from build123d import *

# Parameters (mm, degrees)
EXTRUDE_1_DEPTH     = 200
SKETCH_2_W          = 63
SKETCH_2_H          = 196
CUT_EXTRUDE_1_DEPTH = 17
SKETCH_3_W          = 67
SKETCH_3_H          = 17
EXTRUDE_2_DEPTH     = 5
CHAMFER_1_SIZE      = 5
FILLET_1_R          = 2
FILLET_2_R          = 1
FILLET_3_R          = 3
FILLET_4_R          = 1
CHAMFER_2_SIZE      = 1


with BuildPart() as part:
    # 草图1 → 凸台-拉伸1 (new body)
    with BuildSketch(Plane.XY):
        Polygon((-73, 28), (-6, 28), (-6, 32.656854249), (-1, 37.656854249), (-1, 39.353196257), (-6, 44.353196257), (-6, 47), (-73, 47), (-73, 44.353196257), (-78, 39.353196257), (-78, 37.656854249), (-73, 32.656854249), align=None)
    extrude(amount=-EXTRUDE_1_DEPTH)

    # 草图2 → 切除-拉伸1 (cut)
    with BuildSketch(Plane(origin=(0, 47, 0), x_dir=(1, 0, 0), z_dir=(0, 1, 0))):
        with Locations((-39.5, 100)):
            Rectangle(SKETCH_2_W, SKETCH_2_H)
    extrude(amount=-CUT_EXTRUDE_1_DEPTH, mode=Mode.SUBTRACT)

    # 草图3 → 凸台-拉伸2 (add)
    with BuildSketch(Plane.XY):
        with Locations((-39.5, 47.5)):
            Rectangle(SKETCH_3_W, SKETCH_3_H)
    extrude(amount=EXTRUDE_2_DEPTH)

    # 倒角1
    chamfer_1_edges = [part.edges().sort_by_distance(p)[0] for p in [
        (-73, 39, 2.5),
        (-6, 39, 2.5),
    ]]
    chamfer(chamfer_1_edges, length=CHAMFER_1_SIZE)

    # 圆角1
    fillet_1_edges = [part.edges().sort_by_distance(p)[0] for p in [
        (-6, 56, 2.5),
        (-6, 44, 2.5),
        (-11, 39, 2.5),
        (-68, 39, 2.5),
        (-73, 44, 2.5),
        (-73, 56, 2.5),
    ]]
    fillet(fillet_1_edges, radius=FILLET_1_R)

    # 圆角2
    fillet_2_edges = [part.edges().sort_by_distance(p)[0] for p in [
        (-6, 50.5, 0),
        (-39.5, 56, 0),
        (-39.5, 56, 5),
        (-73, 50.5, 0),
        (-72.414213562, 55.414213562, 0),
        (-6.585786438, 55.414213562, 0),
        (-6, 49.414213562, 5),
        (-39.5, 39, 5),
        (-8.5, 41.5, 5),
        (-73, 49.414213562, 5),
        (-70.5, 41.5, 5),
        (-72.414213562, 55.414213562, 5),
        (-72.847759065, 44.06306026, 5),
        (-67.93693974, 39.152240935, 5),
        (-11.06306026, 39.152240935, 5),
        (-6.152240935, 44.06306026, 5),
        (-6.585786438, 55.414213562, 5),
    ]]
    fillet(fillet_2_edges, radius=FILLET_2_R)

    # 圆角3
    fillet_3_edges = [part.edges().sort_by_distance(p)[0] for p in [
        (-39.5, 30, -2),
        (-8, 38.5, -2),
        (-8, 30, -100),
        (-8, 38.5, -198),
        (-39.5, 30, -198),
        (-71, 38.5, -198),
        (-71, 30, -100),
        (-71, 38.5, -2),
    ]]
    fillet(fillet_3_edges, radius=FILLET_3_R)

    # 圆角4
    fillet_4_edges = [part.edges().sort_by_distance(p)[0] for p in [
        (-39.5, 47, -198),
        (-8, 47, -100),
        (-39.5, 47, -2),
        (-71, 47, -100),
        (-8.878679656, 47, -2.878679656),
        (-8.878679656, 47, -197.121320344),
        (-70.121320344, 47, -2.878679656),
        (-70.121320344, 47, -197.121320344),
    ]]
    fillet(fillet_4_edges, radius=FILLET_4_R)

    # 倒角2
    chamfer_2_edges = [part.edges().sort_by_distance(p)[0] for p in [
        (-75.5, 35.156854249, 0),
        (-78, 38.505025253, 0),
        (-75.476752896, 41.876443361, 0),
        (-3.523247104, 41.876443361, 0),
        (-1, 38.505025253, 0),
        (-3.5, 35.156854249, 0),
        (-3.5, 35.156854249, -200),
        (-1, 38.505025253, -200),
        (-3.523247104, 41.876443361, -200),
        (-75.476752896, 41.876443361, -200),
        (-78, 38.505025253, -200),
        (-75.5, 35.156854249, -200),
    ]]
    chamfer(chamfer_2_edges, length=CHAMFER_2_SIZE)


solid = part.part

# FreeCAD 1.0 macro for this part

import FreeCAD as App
import Part
import Sketcher
from FreeCAD import Vector
Q = App.Units.Quantity


def edges_at(feature, points):
    """Names of the edges that pass closest to the given points."""
    edges = feature.Shape.Edges
    near = lambda p: min(range(len(edges)), key=lambda i: edges[i].distToShape(Part.Vertex(*p))[0])
    return sorted({f"Edge{near(p) + 1}" for p in points})

doc = App.newDocument("Part")
body = doc.addObject("PartDesign::Body", "Body")

# Sketch on XY plane
sketch1 = body.newObject("Sketcher::SketchObject", "Sketch")
sketch1.AttachmentSupport = (doc.getObject("XY_Plane"), [""])
sketch1.MapMode = "FlatFace"
sketch1.addGeometry(Part.LineSegment(Vector(-73, 28, 0), Vector(-6, 28, 0)), False)
sketch1.addGeometry(Part.LineSegment(Vector(-6, 28, 0), Vector(-6, 32.7, 0)), False)
sketch1.addGeometry(Part.LineSegment(Vector(-6, 32.7, 0), Vector(-1, 37.7, 0)), False)
sketch1.addGeometry(Part.LineSegment(Vector(-1, 37.7, 0), Vector(-1, 39.4, 0)), False)
sketch1.addGeometry(Part.LineSegment(Vector(-1, 39.4, 0), Vector(-6, 44.4, 0)), False)
sketch1.addGeometry(Part.LineSegment(Vector(-6, 44.4, 0), Vector(-6, 47, 0)), False)
sketch1.addGeometry(Part.LineSegment(Vector(-6, 47, 0), Vector(-73, 47, 0)), False)
sketch1.addGeometry(Part.LineSegment(Vector(-73, 47, 0), Vector(-73, 44.4, 0)), False)
sketch1.addGeometry(Part.LineSegment(Vector(-73, 44.4, 0), Vector(-78, 39.4, 0)), False)
sketch1.addGeometry(Part.LineSegment(Vector(-78, 39.4, 0), Vector(-78, 37.7, 0)), False)
sketch1.addGeometry(Part.LineSegment(Vector(-78, 37.7, 0), Vector(-73, 32.7, 0)), False)
sketch1.addGeometry(Part.LineSegment(Vector(-73, 32.7, 0), Vector(-73, 28, 0)), False)
sketch1.addConstraint(Sketcher.Constraint("Coincident", 0, 2, 1, 1))
sketch1.addConstraint(Sketcher.Constraint("Coincident", 1, 2, 2, 1))
sketch1.addConstraint(Sketcher.Constraint("Coincident", 2, 2, 3, 1))
sketch1.addConstraint(Sketcher.Constraint("Coincident", 3, 2, 4, 1))
sketch1.addConstraint(Sketcher.Constraint("Coincident", 4, 2, 5, 1))
sketch1.addConstraint(Sketcher.Constraint("Coincident", 5, 2, 6, 1))
sketch1.addConstraint(Sketcher.Constraint("Coincident", 6, 2, 7, 1))
sketch1.addConstraint(Sketcher.Constraint("Coincident", 7, 2, 8, 1))
sketch1.addConstraint(Sketcher.Constraint("Coincident", 8, 2, 9, 1))
sketch1.addConstraint(Sketcher.Constraint("Coincident", 9, 2, 10, 1))
sketch1.addConstraint(Sketcher.Constraint("Coincident", 10, 2, 11, 1))
sketch1.addConstraint(Sketcher.Constraint("Coincident", 11, 2, 0, 1))
sketch1.addConstraint(Sketcher.Constraint("Horizontal", 0))
sketch1.addConstraint(Sketcher.Constraint("Vertical", 1))
sketch1.addConstraint(Sketcher.Constraint("Vertical", 3))
sketch1.addConstraint(Sketcher.Constraint("Vertical", 5))
sketch1.addConstraint(Sketcher.Constraint("Horizontal", 6))
sketch1.addConstraint(Sketcher.Constraint("Vertical", 7))
sketch1.addConstraint(Sketcher.Constraint("Vertical", 9))
sketch1.addConstraint(Sketcher.Constraint("Vertical", 11))
sketch1.addConstraint(Sketcher.Constraint("Perpendicular", 2, 4))
sketch1.addConstraint(Sketcher.Constraint("Perpendicular", 4, 8))
sketch1.addConstraint(Sketcher.Constraint("Perpendicular", 8, 10))
sketch1.addConstraint(Sketcher.Constraint("Horizontal", 4, 2, 7, 2))
sketch1.addConstraint(Sketcher.Constraint("Horizontal", 3, 2, 8, 2))
sketch1.addConstraint(Sketcher.Constraint("Horizontal", 2, 2, 9, 2))
sketch1.addConstraint(Sketcher.Constraint("Horizontal", 1, 2, 10, 2))
sketch1.addConstraint(Sketcher.Constraint("Vertical", 1, 2, 4, 2))
sketch1.addConstraint(Sketcher.Constraint("Vertical", 7, 2, 10, 2))
sketch1.addConstraint(Sketcher.Constraint("DistanceX", 0, 1, 0, 2, Q("67 mm")))
sketch1.addConstraint(Sketcher.Constraint("DistanceX", 0, 2, -1, 1, Q("6 mm")))
sketch1.addConstraint(Sketcher.Constraint("DistanceY", -1, 1, 0, 2, Q("28 mm")))
sketch1.addConstraint(Sketcher.Constraint("DistanceX", 2, 2, -1, 1, Q("1 mm")))
sketch1.addConstraint(Sketcher.Constraint("DistanceY", -1, 1, 5, 2, Q("47 mm")))
sketch1.addConstraint(Sketcher.Constraint("DistanceY", 1, 1, 1, 2, Q("4.656854 mm")))
sketch1.addConstraint(Sketcher.Constraint("DistanceY", 3, 1, 3, 2, Q("1.696342 mm")))
pad1 = body.newObject("PartDesign::Pad", "Pad")
pad1.Profile = sketch1
pad1.Length = 200
pad1.Reversed = True

# Sketch on XZ plane
sketch2 = body.newObject("Sketcher::SketchObject", "Sketch001")
sketch2.AttachmentSupport = (doc.getObject("XZ_Plane"), [""])
sketch2.MapMode = "FlatFace"
sketch2.AttachmentOffset = App.Placement(Vector(0, 0, -47), App.Rotation())
sketch2.addGeometry(Part.LineSegment(Vector(-71, -198, 0), Vector(-71, -2, 0)), False)
sketch2.addGeometry(Part.LineSegment(Vector(-71, -2, 0), Vector(-8, -2, 0)), False)
sketch2.addGeometry(Part.LineSegment(Vector(-8, -2, 0), Vector(-8, -198, 0)), False)
sketch2.addGeometry(Part.LineSegment(Vector(-8, -198, 0), Vector(-71, -198, 0)), False)
sketch2.addConstraint(Sketcher.Constraint("Coincident", 0, 2, 1, 1))
sketch2.addConstraint(Sketcher.Constraint("Coincident", 1, 2, 2, 1))
sketch2.addConstraint(Sketcher.Constraint("Coincident", 2, 2, 3, 1))
sketch2.addConstraint(Sketcher.Constraint("Coincident", 3, 2, 0, 1))
sketch2.addConstraint(Sketcher.Constraint("Vertical", 0))
sketch2.addConstraint(Sketcher.Constraint("Horizontal", 1))
sketch2.addConstraint(Sketcher.Constraint("Vertical", 2))
sketch2.addConstraint(Sketcher.Constraint("Horizontal", 3))
sketch2.addConstraint(Sketcher.Constraint("DistanceX", 1, 1, 1, 2, Q("63 mm")))
sketch2.addConstraint(Sketcher.Constraint("DistanceY", 0, 1, 0, 2, Q("196 mm")))
sketch2.addConstraint(Sketcher.Constraint("DistanceX", 0, 2, -1, 1, Q("71 mm")))
sketch2.addConstraint(Sketcher.Constraint("DistanceY", 0, 2, -1, 1, Q("2 mm")))
pocket1 = body.newObject("PartDesign::Pocket", "Pocket")
pocket1.Profile = sketch2
pocket1.Length = 17
pocket1.Reversed = True

# Sketch on XY plane
sketch3 = body.newObject("Sketcher::SketchObject", "Sketch002")
sketch3.AttachmentSupport = (doc.getObject("XY_Plane"), [""])
sketch3.MapMode = "FlatFace"
sketch3.addGeometry(Part.LineSegment(Vector(-73, 56, 0), Vector(-73, 39, 0)), False)
sketch3.addGeometry(Part.LineSegment(Vector(-73, 39, 0), Vector(-6, 39, 0)), False)
sketch3.addGeometry(Part.LineSegment(Vector(-6, 39, 0), Vector(-6, 56, 0)), False)
sketch3.addGeometry(Part.LineSegment(Vector(-6, 56, 0), Vector(-73, 56, 0)), False)
sketch3.addConstraint(Sketcher.Constraint("Coincident", 0, 2, 1, 1))
sketch3.addConstraint(Sketcher.Constraint("Coincident", 1, 2, 2, 1))
sketch3.addConstraint(Sketcher.Constraint("Coincident", 2, 2, 3, 1))
sketch3.addConstraint(Sketcher.Constraint("Coincident", 3, 2, 0, 1))
sketch3.addConstraint(Sketcher.Constraint("Vertical", 0))
sketch3.addConstraint(Sketcher.Constraint("Horizontal", 1))
sketch3.addConstraint(Sketcher.Constraint("Vertical", 2))
sketch3.addConstraint(Sketcher.Constraint("Horizontal", 3))
sketch3.addConstraint(Sketcher.Constraint("DistanceX", 1, 1, 1, 2, Q("67 mm")))
sketch3.addConstraint(Sketcher.Constraint("DistanceY", 0, 2, 0, 1, Q("17 mm")))
sketch3.addConstraint(Sketcher.Constraint("DistanceX", 0, 2, -1, 1, Q("73 mm")))
sketch3.addConstraint(Sketcher.Constraint("DistanceY", -1, 1, 0, 2, Q("39 mm")))
pad2 = body.newObject("PartDesign::Pad", "Pad001")
pad2.Profile = sketch3
pad2.Length = 5
doc.recompute()

chamfer = body.newObject("PartDesign::Chamfer", "Chamfer")
chamfer.Base = (pad2, edges_at(pad2, [(-73, 39, 2.5), (-6, 39, 2.5)]))
chamfer.Size = 5
doc.recompute()

fillet = body.newObject("PartDesign::Fillet", "Fillet")
fillet.Base = (chamfer, edges_at(chamfer, [
    (-6, 56, 2.5),
    (-6, 44, 2.5),
    (-11, 39, 2.5),
    (-68, 39, 2.5),
    (-73, 44, 2.5),
    (-73, 56, 2.5),
]))
fillet.Radius = 2
doc.recompute()

fillet2 = body.newObject("PartDesign::Fillet", "Fillet001")
fillet2.Base = (fillet, edges_at(fillet, [
    (-6, 50.5, 0),
    (-39.5, 56, 0),
    (-39.5, 56, 5),
    (-73, 50.5, 0),
    (-72.414, 55.414, 0),
    (-6.586, 55.414, 0),
    (-6, 49.414, 5),
    (-39.5, 39, 5),
    (-8.5, 41.5, 5),
    (-73, 49.414, 5),
    (-70.5, 41.5, 5),
    (-72.414, 55.414, 5),
    (-72.848, 44.063, 5),
    (-67.937, 39.152, 5),
    (-11.063, 39.152, 5),
    (-6.152, 44.063, 5),
    (-6.586, 55.414, 5),
]))
fillet2.Radius = 1
doc.recompute()

fillet3 = body.newObject("PartDesign::Fillet", "Fillet002")
fillet3.Base = (fillet2, edges_at(fillet2, [
    (-39.5, 30, -2),
    (-8, 38.5, -2),
    (-8, 30, -100),
    (-8, 38.5, -198),
    (-39.5, 30, -198),
    (-71, 38.5, -198),
    (-71, 30, -100),
    (-71, 38.5, -2),
]))
fillet3.Radius = 3
doc.recompute()

fillet4 = body.newObject("PartDesign::Fillet", "Fillet003")
fillet4.Base = (fillet3, edges_at(fillet3, [
    (-39.5, 47, -198),
    (-8, 47, -100),
    (-39.5, 47, -2),
    (-71, 47, -100),
    (-8.879, 47, -2.879),
    (-8.879, 47, -197.121),
    (-70.121, 47, -2.879),
    (-70.121, 47, -197.121),
]))
fillet4.Radius = 1
doc.recompute()

chamfer2 = body.newObject("PartDesign::Chamfer", "Chamfer001")
chamfer2.Base = (fillet4, edges_at(fillet4, [
    (-75.5, 35.157, 0),
    (-78, 38.505, 0),
    (-75.477, 41.876, 0),
    (-3.523, 41.876, 0),
    (-1, 38.505, 0),
    (-3.5, 35.157, 0),
    (-3.5, 35.157, -200),
    (-1, 38.505, -200),
    (-3.523, 41.876, -200),
    (-75.477, 41.876, -200),
    (-78, 38.505, -200),
    (-75.5, 35.157, -200),
]))
chamfer2.Size = 1

doc.recompute()
